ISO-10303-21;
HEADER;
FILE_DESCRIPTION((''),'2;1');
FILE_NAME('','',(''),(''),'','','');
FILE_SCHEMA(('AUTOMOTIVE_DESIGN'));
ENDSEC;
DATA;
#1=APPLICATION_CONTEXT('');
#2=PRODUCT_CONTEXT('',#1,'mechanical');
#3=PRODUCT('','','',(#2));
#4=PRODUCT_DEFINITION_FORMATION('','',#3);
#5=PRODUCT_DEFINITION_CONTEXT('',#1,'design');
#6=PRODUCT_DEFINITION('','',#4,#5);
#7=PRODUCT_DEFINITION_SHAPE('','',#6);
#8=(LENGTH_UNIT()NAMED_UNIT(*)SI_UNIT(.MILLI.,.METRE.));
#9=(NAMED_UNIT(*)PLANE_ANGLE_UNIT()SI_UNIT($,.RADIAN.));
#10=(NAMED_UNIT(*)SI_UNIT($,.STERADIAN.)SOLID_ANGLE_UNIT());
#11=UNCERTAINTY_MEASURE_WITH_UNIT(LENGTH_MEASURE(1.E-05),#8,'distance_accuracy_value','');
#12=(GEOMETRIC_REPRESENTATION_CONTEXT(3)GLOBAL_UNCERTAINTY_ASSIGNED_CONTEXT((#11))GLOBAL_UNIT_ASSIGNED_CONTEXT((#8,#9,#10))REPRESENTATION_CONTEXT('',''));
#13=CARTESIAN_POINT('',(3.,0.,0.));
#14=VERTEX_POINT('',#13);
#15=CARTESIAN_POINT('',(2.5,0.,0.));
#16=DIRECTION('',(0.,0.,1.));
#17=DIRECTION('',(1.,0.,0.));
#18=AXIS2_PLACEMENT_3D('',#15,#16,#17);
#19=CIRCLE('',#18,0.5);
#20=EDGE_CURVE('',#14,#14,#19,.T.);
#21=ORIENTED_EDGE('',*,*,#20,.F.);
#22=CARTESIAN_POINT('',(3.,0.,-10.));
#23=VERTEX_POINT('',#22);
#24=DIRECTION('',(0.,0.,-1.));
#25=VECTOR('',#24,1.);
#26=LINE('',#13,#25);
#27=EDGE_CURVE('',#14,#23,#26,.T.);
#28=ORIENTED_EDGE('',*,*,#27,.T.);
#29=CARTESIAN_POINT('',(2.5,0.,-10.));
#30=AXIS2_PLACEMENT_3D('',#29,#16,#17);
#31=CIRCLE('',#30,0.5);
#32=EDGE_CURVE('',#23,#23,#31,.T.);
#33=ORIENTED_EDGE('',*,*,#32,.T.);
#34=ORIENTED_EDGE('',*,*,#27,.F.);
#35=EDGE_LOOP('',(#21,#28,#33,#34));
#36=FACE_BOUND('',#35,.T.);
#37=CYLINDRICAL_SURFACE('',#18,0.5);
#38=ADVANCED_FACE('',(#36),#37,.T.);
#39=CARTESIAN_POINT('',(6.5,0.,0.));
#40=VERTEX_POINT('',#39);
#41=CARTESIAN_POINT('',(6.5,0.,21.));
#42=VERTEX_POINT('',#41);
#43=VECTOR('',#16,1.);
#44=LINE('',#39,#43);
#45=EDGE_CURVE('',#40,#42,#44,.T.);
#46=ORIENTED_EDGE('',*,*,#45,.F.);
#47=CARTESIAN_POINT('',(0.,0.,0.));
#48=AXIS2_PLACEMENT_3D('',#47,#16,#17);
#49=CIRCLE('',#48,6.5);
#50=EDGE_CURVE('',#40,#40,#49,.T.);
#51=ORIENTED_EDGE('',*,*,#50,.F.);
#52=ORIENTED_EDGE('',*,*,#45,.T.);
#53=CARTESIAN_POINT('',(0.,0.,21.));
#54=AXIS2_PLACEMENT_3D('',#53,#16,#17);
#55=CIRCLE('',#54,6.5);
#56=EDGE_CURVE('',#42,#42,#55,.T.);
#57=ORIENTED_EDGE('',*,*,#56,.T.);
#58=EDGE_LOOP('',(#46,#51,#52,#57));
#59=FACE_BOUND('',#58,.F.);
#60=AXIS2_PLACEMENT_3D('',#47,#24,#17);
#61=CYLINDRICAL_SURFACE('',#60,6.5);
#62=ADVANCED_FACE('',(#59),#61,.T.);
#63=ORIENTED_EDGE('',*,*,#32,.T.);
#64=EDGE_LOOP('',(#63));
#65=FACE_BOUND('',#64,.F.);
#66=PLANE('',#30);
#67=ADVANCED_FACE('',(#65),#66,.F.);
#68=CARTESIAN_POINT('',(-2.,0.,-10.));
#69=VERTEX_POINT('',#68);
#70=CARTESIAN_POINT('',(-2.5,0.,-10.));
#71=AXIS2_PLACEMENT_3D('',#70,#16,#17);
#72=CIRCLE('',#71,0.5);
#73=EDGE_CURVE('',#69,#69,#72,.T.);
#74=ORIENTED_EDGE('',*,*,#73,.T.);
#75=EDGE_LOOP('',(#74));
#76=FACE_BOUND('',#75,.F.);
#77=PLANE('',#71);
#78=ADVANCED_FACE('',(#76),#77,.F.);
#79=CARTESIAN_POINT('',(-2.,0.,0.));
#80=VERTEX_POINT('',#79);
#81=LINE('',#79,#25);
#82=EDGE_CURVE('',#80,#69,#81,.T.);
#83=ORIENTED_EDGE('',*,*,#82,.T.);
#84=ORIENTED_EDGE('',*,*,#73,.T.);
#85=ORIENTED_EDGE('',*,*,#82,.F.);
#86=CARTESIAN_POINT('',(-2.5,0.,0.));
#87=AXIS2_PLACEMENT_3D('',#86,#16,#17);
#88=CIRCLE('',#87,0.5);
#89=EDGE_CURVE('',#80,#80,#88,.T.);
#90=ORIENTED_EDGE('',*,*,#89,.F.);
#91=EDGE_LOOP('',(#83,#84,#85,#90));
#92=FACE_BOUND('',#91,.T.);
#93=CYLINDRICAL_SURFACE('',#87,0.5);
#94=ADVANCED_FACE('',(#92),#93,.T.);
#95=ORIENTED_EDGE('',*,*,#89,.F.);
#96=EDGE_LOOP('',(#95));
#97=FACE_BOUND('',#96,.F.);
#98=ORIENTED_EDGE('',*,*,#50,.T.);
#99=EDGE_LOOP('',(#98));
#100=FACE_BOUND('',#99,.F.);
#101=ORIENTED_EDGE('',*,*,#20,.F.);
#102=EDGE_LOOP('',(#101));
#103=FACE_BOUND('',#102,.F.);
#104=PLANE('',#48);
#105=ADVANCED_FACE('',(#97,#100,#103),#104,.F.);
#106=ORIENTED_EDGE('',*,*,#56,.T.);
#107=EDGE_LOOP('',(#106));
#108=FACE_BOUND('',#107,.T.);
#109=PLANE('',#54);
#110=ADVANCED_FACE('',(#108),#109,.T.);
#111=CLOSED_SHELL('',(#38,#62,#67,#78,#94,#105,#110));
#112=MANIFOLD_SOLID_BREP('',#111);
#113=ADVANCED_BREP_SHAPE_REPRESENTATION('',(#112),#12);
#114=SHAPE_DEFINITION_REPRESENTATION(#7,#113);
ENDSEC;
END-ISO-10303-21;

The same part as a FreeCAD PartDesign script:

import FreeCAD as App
import Part
import Sketcher
from FreeCAD import Vector

doc = App.newDocument("Part")
body = doc.addObject("PartDesign::Body", "Body")

# Sketch on XY plane
sketch1 = doc.addObject("Sketcher::SketchObject", "Sketch")
body.addObject(sketch1)
sketch1.AttachmentSupport = (doc.XY_Plane, [""])
sketch1.MapMode = "FlatFace"
sketch1.addGeometry(Part.Circle(Vector(0, 0, 0), Vector(0, 0, 1), 6), False)
sketch1.addConstraint([
    Sketcher.Constraint("Coincident", 0, 3, -1, 1),
    Sketcher.Constraint("Diameter", 0, 13.0),
])
pad1 = doc.addObject("PartDesign::Pad", "Pad")
body.addObject(pad1)
pad1.Profile = sketch1
pad1.Length = 21

# Sketch on XY plane
sketch2 = doc.addObject("Sketcher::SketchObject", "Sketch001")
body.addObject(sketch2)
sketch2.AttachmentSupport = (doc.XY_Plane, [""])
sketch2.MapMode = "FlatFace"
sketch2.addGeometry([
    Part.Circle(Vector(-2.5, 0, 0), Vector(0, 0, 1), 0.5),
    Part.Circle(Vector(2.5, 0, 0), Vector(0, 0, 1), 0.5),
], False)
sketch2.addConstraint([
    Sketcher.Constraint("Equal", 0, 1),
    Sketcher.Constraint("Symmetric", 0, 3, 1, 3, -1, 1),
    Sketcher.Constraint("PointOnObject", 0, 3, -1),
    Sketcher.Constraint("Diameter", 0, 1.0),
    Sketcher.Constraint("DistanceX", 0, 3, 1, 3, 5.0),
])
pad2 = doc.addObject("PartDesign::Pad", "Pad001")
body.addObject(pad2)
pad2.Profile = sketch2
pad2.Length = 10
pad2.Reversed = True

doc.recompute()
